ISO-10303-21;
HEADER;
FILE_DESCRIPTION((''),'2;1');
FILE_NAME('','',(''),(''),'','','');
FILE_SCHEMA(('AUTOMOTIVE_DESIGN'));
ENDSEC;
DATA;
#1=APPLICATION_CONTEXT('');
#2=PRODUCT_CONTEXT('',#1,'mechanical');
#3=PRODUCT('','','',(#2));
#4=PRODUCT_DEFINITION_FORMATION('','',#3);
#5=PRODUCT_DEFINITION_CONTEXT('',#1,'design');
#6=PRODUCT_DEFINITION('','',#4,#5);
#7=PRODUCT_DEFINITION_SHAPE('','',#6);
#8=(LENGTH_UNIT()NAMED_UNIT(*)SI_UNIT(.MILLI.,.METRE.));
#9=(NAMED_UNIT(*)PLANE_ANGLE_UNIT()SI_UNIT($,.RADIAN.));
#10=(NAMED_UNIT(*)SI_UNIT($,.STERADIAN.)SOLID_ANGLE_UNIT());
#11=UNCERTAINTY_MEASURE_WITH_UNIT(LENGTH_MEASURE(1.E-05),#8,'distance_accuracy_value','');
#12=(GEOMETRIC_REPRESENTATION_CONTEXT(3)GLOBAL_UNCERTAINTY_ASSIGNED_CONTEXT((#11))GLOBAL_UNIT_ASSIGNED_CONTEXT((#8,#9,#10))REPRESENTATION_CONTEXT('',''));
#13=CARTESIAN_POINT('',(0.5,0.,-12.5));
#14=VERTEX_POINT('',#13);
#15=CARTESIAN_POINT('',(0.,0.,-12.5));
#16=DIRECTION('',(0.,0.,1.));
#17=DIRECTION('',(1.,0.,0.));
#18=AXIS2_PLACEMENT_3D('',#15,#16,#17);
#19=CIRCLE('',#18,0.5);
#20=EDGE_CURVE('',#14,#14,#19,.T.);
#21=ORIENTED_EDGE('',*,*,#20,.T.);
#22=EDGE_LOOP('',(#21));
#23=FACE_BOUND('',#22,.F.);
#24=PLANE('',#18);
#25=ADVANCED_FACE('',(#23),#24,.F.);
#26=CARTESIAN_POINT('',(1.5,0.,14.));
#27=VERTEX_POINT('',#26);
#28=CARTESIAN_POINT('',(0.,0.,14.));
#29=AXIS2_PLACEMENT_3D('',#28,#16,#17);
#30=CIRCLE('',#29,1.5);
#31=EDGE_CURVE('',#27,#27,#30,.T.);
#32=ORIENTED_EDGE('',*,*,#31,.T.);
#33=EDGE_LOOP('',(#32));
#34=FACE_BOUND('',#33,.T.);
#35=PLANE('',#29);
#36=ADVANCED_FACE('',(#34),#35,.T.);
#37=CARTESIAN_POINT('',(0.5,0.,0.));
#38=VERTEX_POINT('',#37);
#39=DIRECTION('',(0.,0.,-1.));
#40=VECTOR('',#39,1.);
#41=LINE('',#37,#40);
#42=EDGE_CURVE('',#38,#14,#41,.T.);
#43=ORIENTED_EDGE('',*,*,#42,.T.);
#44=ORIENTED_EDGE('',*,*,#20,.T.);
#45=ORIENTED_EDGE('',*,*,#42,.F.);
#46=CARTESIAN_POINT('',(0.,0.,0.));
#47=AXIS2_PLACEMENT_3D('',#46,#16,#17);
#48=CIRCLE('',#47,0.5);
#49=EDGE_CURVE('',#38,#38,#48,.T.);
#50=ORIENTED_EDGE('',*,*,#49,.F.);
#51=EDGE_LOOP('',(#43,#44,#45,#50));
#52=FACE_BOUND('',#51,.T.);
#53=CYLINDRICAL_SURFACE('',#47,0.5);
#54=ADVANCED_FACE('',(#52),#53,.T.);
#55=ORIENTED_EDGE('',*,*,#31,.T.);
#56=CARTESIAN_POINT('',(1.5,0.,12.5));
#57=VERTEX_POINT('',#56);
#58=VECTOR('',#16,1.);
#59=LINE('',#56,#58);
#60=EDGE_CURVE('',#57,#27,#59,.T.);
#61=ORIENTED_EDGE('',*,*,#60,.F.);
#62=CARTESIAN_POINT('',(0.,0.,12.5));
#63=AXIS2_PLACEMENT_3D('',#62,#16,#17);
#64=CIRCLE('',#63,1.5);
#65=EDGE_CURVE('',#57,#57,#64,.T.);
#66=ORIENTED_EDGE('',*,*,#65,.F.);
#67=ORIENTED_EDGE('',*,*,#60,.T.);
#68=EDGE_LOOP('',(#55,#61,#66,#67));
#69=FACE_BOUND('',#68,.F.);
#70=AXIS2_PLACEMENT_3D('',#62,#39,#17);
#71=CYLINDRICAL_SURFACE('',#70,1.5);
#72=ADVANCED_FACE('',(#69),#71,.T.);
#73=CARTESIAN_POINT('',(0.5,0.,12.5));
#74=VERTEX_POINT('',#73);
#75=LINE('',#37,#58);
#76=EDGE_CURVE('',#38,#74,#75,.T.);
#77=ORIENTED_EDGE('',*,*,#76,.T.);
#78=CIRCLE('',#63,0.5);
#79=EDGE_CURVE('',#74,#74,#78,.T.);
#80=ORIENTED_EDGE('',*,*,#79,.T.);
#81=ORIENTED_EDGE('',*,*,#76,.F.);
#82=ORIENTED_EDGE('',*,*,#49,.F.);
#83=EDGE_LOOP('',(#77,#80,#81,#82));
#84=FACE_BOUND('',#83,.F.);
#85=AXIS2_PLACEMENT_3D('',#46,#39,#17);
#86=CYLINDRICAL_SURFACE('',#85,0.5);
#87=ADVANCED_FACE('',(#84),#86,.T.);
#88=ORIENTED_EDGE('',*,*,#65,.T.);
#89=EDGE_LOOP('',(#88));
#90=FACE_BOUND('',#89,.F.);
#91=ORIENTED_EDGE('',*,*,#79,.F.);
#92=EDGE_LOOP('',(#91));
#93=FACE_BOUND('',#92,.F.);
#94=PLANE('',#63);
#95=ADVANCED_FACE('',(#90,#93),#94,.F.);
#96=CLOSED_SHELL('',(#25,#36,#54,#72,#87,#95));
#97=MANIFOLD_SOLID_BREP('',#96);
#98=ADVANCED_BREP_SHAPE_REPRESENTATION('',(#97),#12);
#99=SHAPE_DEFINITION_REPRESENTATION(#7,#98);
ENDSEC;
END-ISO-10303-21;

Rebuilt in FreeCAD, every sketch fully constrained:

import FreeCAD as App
import Part
import Sketcher

V = App.Vector
Q = App.Units.Quantity

doc = App.newDocument("Part")
params = doc.addObject("Spreadsheet::Sheet", "Params")
for row, (alias, value) in enumerate([
    ("sketch1_diameter", "1 mm"),
    ("pad1_length", "25 mm"),
    ("sketch2_diameter", "3 mm"),
    ("pad2_length", "1.5 mm"),
], start=1):
    params.set(f"A{row}", alias)
    params.set(f"B{row}", "=" + value)
    params.setAlias(f"B{row}", alias)

body = doc.addObject("PartDesign::Body", "Body")

# Sketch on XY plane
sketch1 = body.newObject("Sketcher::SketchObject", "Sketch")
sketch1.AttachmentSupport = (doc.getObject("XY_Plane"), [""])
sketch1.MapMode = "FlatFace"
sketch1.addGeometry(Part.Circle(V(0, 0, 0), V(0, 0, 1), 0.5), False)
sketch1.addConstraint(Sketcher.Constraint("Coincident", 0, 3, -1, 1))
sketch1.addConstraint(Sketcher.Constraint("Diameter", 0, Q("1 mm")))
sketch1.setExpression("Constraints[1]", "Params.sketch1_diameter")
pad1 = body.newObject("PartDesign::Pad", "Pad")
pad1.Profile = sketch1
pad1.setExpression("Length", "Params.pad1_length")
pad1.Midplane = True

# Sketch on XY plane
sketch2 = body.newObject("Sketcher::SketchObject", "Sketch001")
sketch2.AttachmentSupport = (doc.getObject("XY_Plane"), [""])
sketch2.MapMode = "FlatFace"
sketch2.AttachmentOffset = App.Placement(V(0, 0, 12.5), App.Rotation())
sketch2.addGeometry(Part.Circle(V(0, 0, 0), V(0, 0, 1), 1.5), False)
sketch2.addConstraint(Sketcher.Constraint("Coincident", 0, 3, -1, 1))
sketch2.addConstraint(Sketcher.Constraint("Diameter", 0, Q("3 mm")))
sketch2.setExpression("Constraints[1]", "Params.sketch2_diameter")
pad2 = body.newObject("PartDesign::Pad", "Pad001")
pad2.Profile = sketch2
pad2.setExpression("Length", "Params.pad2_length")

doc.recompute()
